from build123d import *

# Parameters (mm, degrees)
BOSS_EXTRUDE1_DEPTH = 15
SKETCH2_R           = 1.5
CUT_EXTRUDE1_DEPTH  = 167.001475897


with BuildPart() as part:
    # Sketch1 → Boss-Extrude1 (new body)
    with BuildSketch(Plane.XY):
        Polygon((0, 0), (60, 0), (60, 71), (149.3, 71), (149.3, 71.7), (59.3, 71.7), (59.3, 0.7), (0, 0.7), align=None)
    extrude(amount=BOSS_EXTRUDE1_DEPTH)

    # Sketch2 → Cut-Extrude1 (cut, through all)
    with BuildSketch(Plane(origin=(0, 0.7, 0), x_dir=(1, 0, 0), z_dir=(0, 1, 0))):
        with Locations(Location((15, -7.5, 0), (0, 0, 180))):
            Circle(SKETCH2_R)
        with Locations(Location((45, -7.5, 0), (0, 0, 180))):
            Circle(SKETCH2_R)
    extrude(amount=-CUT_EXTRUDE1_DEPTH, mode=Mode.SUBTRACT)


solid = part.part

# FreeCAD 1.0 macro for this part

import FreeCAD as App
import Part
import Sketcher

V = App.Vector
Q = App.Units.Quantity


def add_polygon(sketch, points):
    """Adds a closed chain of lines whose ends are joined by coincident constraints."""
    first, n = sketch.GeometryCount, len(points)
    for a, b in zip(points, points[1:] + points[:1]):
        sketch.addGeometry(Part.LineSegment(App.Vector(*a, 0), App.Vector(*b, 0)), False)
    for i in range(n):
        sketch.addConstraint(Sketcher.Constraint("Coincident", first + i, 2, first + (i + 1) % n, 1))

doc = App.newDocument("Part")
params = doc.addObject("Spreadsheet::Sheet", "Params")
for row, (alias, value) in enumerate([
    ("sketch1_width", "60 mm"),
    ("sketch1_width2", "90 mm"),
    ("sketch1_height", "71 mm"),
    ("sketch1_width3", "89.3 mm"),
    ("sketch1_height2", "0.7 mm"),
    ("pad1_length", "15 mm"),
    ("sketch2_diameter", "3 mm"),
], start=1):
    params.set(f"A{row}", alias)
    params.set(f"B{row}", "=" + value)
    params.setAlias(f"B{row}", alias)

body = doc.addObject("PartDesign::Body", "Body")

# Sketch on XY plane
sketch1 = doc.addObject("Sketcher::SketchObject", "Sketch")
body.addObject(sketch1)
sketch1.AttachmentSupport = (doc.XY_Plane, [""])
sketch1.MapMode = "FlatFace"
add_polygon(sketch1, [(0, 0), (60, 0), (60, 71), (149.3, 71), (149.3, 71.7), (59.3, 71.7), (59.3, 0.7), (0, 0.7)])  # lines 0-7
sketch1.addConstraint([
    Sketcher.Constraint("Horizontal", 0),
    Sketcher.Constraint("Vertical", 1),
    Sketcher.Constraint("Horizontal", 2),
    Sketcher.Constraint("Vertical", 3),
    Sketcher.Constraint("Horizontal", 4),
    Sketcher.Constraint("Vertical", 5),
    Sketcher.Constraint("Horizontal", 6),
    Sketcher.Constraint("Vertical", 7),
    Sketcher.Constraint("Coincident", 7, 2, -1, 1),
    Sketcher.Constraint("Equal", 1, 5),
    Sketcher.Constraint("DistanceX", 0, 1, 0, 2, Q("60 mm")),
    Sketcher.Constraint("DistanceX", 4, 2, 4, 1, Q("90 mm")),
    Sketcher.Constraint("DistanceY", 1, 1, 1, 2, Q("71 mm")),
    Sketcher.Constraint("DistanceX", 2, 1, 2, 2, Q("89.3 mm")),
    Sketcher.Constraint("DistanceY", 3, 1, 3, 2, Q("0.7 mm")),
])
sketch1.setExpression("Constraints[18]", "Params.sketch1_width")
sketch1.setExpression("Constraints[19]", "Params.sketch1_width2")
sketch1.setExpression("Constraints[20]", "Params.sketch1_height")
sketch1.setExpression("Constraints[21]", "Params.sketch1_width3")
sketch1.setExpression("Constraints[22]", "Params.sketch1_height2")
pad1 = doc.addObject("PartDesign::Pad", "Pad")
body.addObject(pad1)
pad1.Profile = sketch1
pad1.setExpression("Length", "Params.pad1_length")

# Sketch on XZ plane
sketch2 = doc.addObject("Sketcher::SketchObject", "Sketch001")
body.addObject(sketch2)
sketch2.AttachmentSupport = (doc.XZ_Plane, [""])
sketch2.MapMode = "FlatFace"
sketch2.AttachmentOffset = App.Placement(V(0, 0, -0.7), App.Rotation())
sketch2.addGeometry([
    Part.Circle(V(15, 7.5, 0), V(0, 0, 1), 1.5),
    Part.Circle(V(45, 7.5, 0), V(0, 0, 1), 1.5),
], False)
sketch2.addConstraint([
    Sketcher.Constraint("Equal", 0, 1),
    Sketcher.Constraint("Horizontal", 0, 3, 1, 3),
    Sketcher.Constraint("Diameter", 0, Q("3 mm")),
    Sketcher.Constraint("DistanceX", -1, 1, 0, 3, Q("15 mm")),
    Sketcher.Constraint("DistanceX", -1, 1, 1, 3, Q("45 mm")),
    Sketcher.Constraint("DistanceY", -1, 1, 0, 3, Q("7.5 mm")),
])
sketch2.setExpression("Constraints[2]", "Params.sketch2_diameter")
pocket1 = doc.addObject("PartDesign::Pocket", "Pocket")
body.addObject(pocket1)
pocket1.Profile = sketch2
pocket1.Type = "ThroughAll"
pocket1.Reversed = True

doc.recompute()
